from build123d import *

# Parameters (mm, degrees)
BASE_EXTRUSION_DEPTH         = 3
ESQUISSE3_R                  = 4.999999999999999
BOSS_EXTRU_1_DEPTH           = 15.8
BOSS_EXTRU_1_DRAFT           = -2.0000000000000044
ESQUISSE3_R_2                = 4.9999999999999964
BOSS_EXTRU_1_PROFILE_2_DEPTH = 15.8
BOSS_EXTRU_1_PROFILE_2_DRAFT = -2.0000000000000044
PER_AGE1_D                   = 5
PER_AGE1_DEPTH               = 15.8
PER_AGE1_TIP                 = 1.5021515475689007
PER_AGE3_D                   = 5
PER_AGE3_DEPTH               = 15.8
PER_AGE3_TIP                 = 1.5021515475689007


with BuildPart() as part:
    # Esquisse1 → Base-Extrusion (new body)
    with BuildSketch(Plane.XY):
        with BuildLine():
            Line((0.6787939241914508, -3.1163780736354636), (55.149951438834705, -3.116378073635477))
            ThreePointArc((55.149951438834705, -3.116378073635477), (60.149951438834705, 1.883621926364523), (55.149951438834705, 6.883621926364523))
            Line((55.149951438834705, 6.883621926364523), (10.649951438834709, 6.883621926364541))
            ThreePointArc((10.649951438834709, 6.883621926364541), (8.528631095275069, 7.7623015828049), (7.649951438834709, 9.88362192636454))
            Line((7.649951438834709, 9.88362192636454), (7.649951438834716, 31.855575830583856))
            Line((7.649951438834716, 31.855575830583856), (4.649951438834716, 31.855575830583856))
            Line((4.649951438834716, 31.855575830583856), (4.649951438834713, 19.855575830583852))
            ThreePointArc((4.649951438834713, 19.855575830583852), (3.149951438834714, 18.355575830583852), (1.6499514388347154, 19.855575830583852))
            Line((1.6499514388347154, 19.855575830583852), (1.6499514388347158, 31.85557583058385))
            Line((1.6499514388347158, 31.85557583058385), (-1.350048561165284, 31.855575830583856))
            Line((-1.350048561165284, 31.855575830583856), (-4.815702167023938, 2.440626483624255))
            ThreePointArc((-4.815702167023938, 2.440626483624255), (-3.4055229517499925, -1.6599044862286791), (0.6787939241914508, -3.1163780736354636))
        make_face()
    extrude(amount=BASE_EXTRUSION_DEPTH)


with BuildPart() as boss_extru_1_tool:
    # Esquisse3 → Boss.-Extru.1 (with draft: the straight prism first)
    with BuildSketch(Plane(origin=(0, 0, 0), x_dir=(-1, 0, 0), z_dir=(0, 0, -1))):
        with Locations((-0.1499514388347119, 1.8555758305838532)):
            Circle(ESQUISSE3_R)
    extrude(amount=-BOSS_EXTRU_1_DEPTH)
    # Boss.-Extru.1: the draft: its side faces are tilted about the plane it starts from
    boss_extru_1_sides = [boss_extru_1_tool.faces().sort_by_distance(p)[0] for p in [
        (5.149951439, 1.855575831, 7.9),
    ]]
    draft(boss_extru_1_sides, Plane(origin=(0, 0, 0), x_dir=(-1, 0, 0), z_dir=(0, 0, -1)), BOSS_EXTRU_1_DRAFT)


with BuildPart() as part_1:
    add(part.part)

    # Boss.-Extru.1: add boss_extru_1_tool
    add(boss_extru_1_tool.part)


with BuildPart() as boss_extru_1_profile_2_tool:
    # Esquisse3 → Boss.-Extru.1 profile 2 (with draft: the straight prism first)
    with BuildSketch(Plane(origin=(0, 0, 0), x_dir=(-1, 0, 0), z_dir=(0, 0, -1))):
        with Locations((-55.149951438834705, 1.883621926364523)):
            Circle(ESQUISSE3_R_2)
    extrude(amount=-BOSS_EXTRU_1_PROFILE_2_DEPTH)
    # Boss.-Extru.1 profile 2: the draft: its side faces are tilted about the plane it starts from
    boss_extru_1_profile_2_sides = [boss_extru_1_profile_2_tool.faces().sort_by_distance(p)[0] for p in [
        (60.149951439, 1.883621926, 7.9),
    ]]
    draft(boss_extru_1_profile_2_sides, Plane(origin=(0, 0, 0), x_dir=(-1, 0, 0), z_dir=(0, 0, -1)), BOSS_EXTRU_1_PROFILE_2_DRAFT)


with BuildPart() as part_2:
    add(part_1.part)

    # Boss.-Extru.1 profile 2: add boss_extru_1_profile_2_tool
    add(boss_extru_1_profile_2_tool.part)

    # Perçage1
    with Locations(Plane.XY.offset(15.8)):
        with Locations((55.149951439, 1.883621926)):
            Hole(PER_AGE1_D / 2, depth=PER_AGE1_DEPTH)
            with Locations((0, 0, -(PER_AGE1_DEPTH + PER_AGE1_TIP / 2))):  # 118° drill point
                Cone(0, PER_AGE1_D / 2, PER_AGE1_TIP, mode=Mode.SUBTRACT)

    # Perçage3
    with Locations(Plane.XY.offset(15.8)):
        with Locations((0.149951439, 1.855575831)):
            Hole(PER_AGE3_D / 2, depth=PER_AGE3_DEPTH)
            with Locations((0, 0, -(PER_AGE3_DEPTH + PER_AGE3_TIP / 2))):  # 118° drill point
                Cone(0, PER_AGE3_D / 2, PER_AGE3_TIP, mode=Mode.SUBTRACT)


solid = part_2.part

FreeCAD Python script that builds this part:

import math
import FreeCAD as App
import Part
import Sketcher


def faces_at(feature, points):
    """Names of the faces that lie closest to the given points."""
    faces = feature.Shape.Faces
    near = lambda p: min(range(len(faces)), key=lambda i: faces[i].distToShape(Part.Vertex(*p))[0])
    return sorted({f"Face{near(p) + 1}" for p in points})

doc = App.newDocument("Part")
body = doc.addObject("PartDesign::Body", "Body")

# Sketch on XY plane
sketch1 = body.newObject("Sketcher::SketchObject", "Sketch")
sketch1.AttachmentSupport = (doc.getObject("XY_Plane"), [""])
sketch1.MapMode = "FlatFace"
sketch1.addGeometry(Part.LineSegment(App.Vector(0.7, -3.1, 0), App.Vector(55.1, -3.1, 0)), False)
sketch1.addGeometry(Part.ArcOfCircle(Part.Circle(App.Vector(55.1, 1.9, 0), App.Vector(0, 0, 1), 5), math.radians(-90), math.radians(90)), False)
sketch1.addGeometry(Part.LineSegment(App.Vector(55.1, 6.9, 0), App.Vector(10.6, 6.9, 0)), False)
sketch1.addGeometry(Part.ArcOfCircle(Part.Circle(App.Vector(10.6, 9.9, 0), App.Vector(0, 0, 1), 3), math.radians(180), math.radians(270)), False)
sketch1.addGeometry(Part.LineSegment(App.Vector(7.6, 9.9, 0), App.Vector(7.6, 31.9, 0)), False)
sketch1.addGeometry(Part.LineSegment(App.Vector(7.6, 31.9, 0), App.Vector(4.6, 31.9, 0)), False)
sketch1.addGeometry(Part.LineSegment(App.Vector(4.6, 31.9, 0), App.Vector(4.6, 19.9, 0)), False)
sketch1.addGeometry(Part.ArcOfCircle(Part.Circle(App.Vector(3.1, 19.9, 0), App.Vector(0, 0, 1), 1.5), math.radians(180), math.radians(360)), False)
sketch1.addGeometry(Part.LineSegment(App.Vector(1.6, 19.9, 0), App.Vector(1.6, 31.9, 0)), False)
sketch1.addGeometry(Part.LineSegment(App.Vector(1.6, 31.9, 0), App.Vector(-1.4, 31.9, 0)), False)
sketch1.addGeometry(Part.LineSegment(App.Vector(-1.4, 31.9, 0), App.Vector(-4.8, 2.4, 0)), False)
sketch1.addGeometry(Part.ArcOfCircle(Part.Circle(App.Vector(0.1, 1.9, 0), App.Vector(0, 0, 1), 5), math.radians(173), math.radians(276)), False)
sketch1.addConstraint(Sketcher.Constraint("Tangent", 0, 2, 1, 1))
sketch1.addConstraint(Sketcher.Constraint("Tangent", 1, 2, 2, 1))
sketch1.addConstraint(Sketcher.Constraint("Tangent", 2, 2, 3, 2))
sketch1.addConstraint(Sketcher.Constraint("Tangent", 3, 1, 4, 1))
sketch1.addConstraint(Sketcher.Constraint("Coincident", 4, 2, 5, 1))
sketch1.addConstraint(Sketcher.Constraint("Coincident", 5, 2, 6, 1))
sketch1.addConstraint(Sketcher.Constraint("Tangent", 6, 2, 7, 2))
sketch1.addConstraint(Sketcher.Constraint("Tangent", 7, 1, 8, 1))
sketch1.addConstraint(Sketcher.Constraint("Coincident", 8, 2, 9, 1))
sketch1.addConstraint(Sketcher.Constraint("Coincident", 9, 2, 10, 1))
sketch1.addConstraint(Sketcher.Constraint("Tangent", 10, 2, 11, 1))
sketch1.addConstraint(Sketcher.Constraint("Coincident", 11, 2, 0, 1))
sketch1.addConstraint(Sketcher.Constraint("Horizontal", 0))
sketch1.addConstraint(Sketcher.Constraint("Horizontal", 2))
sketch1.addConstraint(Sketcher.Constraint("Vertical", 4))
sketch1.addConstraint(Sketcher.Constraint("Horizontal", 5))
sketch1.addConstraint(Sketcher.Constraint("Vertical", 6))
sketch1.addConstraint(Sketcher.Constraint("Vertical", 8))
sketch1.addConstraint(Sketcher.Constraint("Horizontal", 9))
sketch1.addConstraint(Sketcher.Constraint("Equal", 1, 11))
sketch1.addConstraint(Sketcher.Constraint("Horizontal", 5, 2, 8, 2))
sketch1.addConstraint(Sketcher.Constraint("Equal", 5, 9))
sketch1.addConstraint(Sketcher.Constraint("Radius", 1, 5.0))
sketch1.addConstraint(Sketcher.Constraint("Radius", 3, 3.0))
sketch1.addConstraint(Sketcher.Constraint("Radius", 7, 1.5))
sketch1.addConstraint(Sketcher.Constraint("DistanceX", 5, 2, 5, 1, 3.0))
sketch1.addConstraint(Sketcher.Constraint("DistanceY", 6, 2, 6, 1, 12.0))
sketch1.addConstraint(Sketcher.Constraint("DistanceX", 2, 2, 2, 1, 44.5))
sketch1.addConstraint(Sketcher.Constraint("DistanceX", 11, 3, 7, 3, 3.0))
sketch1.addConstraint(Sketcher.Constraint("DistanceY", 11, 3, 7, 3, 18.0))
sketch1.addConstraint(Sketcher.Constraint("DistanceX", 0, 1, 0, 2, 54.471158))
sketch1.addConstraint(Sketcher.Constraint("DistanceX", -1, 1, 1, 3, 55.149951))
sketch1.addConstraint(Sketcher.Constraint("DistanceY", -1, 1, 1, 3, 1.883622))
pad1 = body.newObject("PartDesign::Pad", "Pad")
pad1.Profile = sketch1
pad1.Length = 3
body2 = doc.addObject("PartDesign::Body", "Body001")

# Sketch on XY plane
sketch2 = body2.newObject("Sketcher::SketchObject", "Sketch001")
sketch2.AttachmentSupport = (doc.getObject("XY_Plane001"), [""])
sketch2.MapMode = "FlatFace"
sketch2.addGeometry(Part.Circle(App.Vector(0, 2, 0), App.Vector(0, 0, 1), 5), False)
sketch2.addConstraint(Sketcher.Constraint("Diameter", 0, 10.0))
sketch2.addConstraint(Sketcher.Constraint("DistanceX", -1, 1, 0, 3, 0.149951))
sketch2.addConstraint(Sketcher.Constraint("DistanceY", -1, 1, 0, 3, 1.855576))
pad2 = body2.newObject("PartDesign::Pad", "Pad001")
pad2.Profile = sketch2
pad2.Length = 15.8
doc.recompute()

draft = body2.newObject("PartDesign::Draft", "Draft")
draft.Base = (pad2, faces_at(pad2, [(5.15, 1.856, 7.9)]))
draft.NeutralPlane = (doc.getObject("XY_Plane001"), [""])
draft.Angle = 2
draft.Reversed = False
doc.recompute()

boolean = body.newObject("PartDesign::Boolean", "Boolean")
boolean.Type = "Fuse"
boolean.addObjects([body2])
body3 = doc.addObject("PartDesign::Body", "Body002")

# Sketch on XY plane
sketch3 = body3.newObject("Sketcher::SketchObject", "Sketch002")
sketch3.AttachmentSupport = (doc.getObject("XY_Plane002"), [""])
sketch3.MapMode = "FlatFace"
sketch3.addGeometry(Part.Circle(App.Vector(55, 2, 0), App.Vector(0, 0, 1), 5), False)
sketch3.addConstraint(Sketcher.Constraint("Diameter", 0, 10.0))
sketch3.addConstraint(Sketcher.Constraint("DistanceX", -1, 1, 0, 3, 55.149951))
sketch3.addConstraint(Sketcher.Constraint("DistanceY", -1, 1, 0, 3, 1.883622))
pad3 = body3.newObject("PartDesign::Pad", "Pad002")
pad3.Profile = sketch3
pad3.Length = 15.8
doc.recompute()

draft2 = body3.newObject("PartDesign::Draft", "Draft001")
draft2.Base = (pad3, faces_at(pad3, [(60.15, 1.884, 7.9)]))
draft2.NeutralPlane = (doc.getObject("XY_Plane002"), [""])
draft2.Angle = 2
draft2.Reversed = False
doc.recompute()

boolean2 = body.newObject("PartDesign::Boolean", "Boolean001")
boolean2.Type = "Fuse"
boolean2.addObjects([body3])

# Sketch on XY plane
sketch4 = body.newObject("Sketcher::SketchObject", "Sketch003")
sketch4.AttachmentSupport = (doc.getObject("XY_Plane"), [""])
sketch4.MapMode = "FlatFace"
sketch4.AttachmentOffset = App.Placement(App.Vector(0, 0, 15.8), App.Rotation())
sketch4.addGeometry(Part.Circle(App.Vector(55.1, 1.9, 0), App.Vector(0, 0, 1), 2.5), False)
sketch4.addConstraint(Sketcher.Constraint("Diameter", 0, 5.0))
sketch4.addConstraint(Sketcher.Constraint("DistanceX", -1, 1, 0, 3, 55.149951))
sketch4.addConstraint(Sketcher.Constraint("DistanceY", -1, 1, 0, 3, 1.883622))
doc.recompute()
hole = body.newObject("PartDesign::Hole", "Hole")
hole.Profile = sketch4
hole.ThreadType = "None"
hole.Diameter = 5
hole.DepthType = "Dimension"
hole.Depth = 15.8
hole.DrillPoint = "Angled"
hole.DrillPointAngle = 118

# Sketch on XY plane
sketch5 = body.newObject("Sketcher::SketchObject", "Sketch004")
sketch5.AttachmentSupport = (doc.getObject("XY_Plane"), [""])
sketch5.MapMode = "FlatFace"
sketch5.AttachmentOffset = App.Placement(App.Vector(0, 0, 15.8), App.Rotation())
sketch5.addGeometry(Part.Circle(App.Vector(0.1, 1.9, 0), App.Vector(0, 0, 1), 2.5), False)
sketch5.addConstraint(Sketcher.Constraint("Diameter", 0, 5.0))
sketch5.addConstraint(Sketcher.Constraint("DistanceX", -1, 1, 0, 3, 0.149951))
sketch5.addConstraint(Sketcher.Constraint("DistanceY", -1, 1, 0, 3, 1.855576))
doc.recompute()
hole2 = body.newObject("PartDesign::Hole", "Hole001")
hole2.Profile = sketch5
hole2.ThreadType = "None"
hole2.Diameter = 5
hole2.DepthType = "Dimension"
hole2.Depth = 15.8
hole2.DrillPoint = "Angled"
hole2.DrillPointAngle = 118

doc.recompute()
